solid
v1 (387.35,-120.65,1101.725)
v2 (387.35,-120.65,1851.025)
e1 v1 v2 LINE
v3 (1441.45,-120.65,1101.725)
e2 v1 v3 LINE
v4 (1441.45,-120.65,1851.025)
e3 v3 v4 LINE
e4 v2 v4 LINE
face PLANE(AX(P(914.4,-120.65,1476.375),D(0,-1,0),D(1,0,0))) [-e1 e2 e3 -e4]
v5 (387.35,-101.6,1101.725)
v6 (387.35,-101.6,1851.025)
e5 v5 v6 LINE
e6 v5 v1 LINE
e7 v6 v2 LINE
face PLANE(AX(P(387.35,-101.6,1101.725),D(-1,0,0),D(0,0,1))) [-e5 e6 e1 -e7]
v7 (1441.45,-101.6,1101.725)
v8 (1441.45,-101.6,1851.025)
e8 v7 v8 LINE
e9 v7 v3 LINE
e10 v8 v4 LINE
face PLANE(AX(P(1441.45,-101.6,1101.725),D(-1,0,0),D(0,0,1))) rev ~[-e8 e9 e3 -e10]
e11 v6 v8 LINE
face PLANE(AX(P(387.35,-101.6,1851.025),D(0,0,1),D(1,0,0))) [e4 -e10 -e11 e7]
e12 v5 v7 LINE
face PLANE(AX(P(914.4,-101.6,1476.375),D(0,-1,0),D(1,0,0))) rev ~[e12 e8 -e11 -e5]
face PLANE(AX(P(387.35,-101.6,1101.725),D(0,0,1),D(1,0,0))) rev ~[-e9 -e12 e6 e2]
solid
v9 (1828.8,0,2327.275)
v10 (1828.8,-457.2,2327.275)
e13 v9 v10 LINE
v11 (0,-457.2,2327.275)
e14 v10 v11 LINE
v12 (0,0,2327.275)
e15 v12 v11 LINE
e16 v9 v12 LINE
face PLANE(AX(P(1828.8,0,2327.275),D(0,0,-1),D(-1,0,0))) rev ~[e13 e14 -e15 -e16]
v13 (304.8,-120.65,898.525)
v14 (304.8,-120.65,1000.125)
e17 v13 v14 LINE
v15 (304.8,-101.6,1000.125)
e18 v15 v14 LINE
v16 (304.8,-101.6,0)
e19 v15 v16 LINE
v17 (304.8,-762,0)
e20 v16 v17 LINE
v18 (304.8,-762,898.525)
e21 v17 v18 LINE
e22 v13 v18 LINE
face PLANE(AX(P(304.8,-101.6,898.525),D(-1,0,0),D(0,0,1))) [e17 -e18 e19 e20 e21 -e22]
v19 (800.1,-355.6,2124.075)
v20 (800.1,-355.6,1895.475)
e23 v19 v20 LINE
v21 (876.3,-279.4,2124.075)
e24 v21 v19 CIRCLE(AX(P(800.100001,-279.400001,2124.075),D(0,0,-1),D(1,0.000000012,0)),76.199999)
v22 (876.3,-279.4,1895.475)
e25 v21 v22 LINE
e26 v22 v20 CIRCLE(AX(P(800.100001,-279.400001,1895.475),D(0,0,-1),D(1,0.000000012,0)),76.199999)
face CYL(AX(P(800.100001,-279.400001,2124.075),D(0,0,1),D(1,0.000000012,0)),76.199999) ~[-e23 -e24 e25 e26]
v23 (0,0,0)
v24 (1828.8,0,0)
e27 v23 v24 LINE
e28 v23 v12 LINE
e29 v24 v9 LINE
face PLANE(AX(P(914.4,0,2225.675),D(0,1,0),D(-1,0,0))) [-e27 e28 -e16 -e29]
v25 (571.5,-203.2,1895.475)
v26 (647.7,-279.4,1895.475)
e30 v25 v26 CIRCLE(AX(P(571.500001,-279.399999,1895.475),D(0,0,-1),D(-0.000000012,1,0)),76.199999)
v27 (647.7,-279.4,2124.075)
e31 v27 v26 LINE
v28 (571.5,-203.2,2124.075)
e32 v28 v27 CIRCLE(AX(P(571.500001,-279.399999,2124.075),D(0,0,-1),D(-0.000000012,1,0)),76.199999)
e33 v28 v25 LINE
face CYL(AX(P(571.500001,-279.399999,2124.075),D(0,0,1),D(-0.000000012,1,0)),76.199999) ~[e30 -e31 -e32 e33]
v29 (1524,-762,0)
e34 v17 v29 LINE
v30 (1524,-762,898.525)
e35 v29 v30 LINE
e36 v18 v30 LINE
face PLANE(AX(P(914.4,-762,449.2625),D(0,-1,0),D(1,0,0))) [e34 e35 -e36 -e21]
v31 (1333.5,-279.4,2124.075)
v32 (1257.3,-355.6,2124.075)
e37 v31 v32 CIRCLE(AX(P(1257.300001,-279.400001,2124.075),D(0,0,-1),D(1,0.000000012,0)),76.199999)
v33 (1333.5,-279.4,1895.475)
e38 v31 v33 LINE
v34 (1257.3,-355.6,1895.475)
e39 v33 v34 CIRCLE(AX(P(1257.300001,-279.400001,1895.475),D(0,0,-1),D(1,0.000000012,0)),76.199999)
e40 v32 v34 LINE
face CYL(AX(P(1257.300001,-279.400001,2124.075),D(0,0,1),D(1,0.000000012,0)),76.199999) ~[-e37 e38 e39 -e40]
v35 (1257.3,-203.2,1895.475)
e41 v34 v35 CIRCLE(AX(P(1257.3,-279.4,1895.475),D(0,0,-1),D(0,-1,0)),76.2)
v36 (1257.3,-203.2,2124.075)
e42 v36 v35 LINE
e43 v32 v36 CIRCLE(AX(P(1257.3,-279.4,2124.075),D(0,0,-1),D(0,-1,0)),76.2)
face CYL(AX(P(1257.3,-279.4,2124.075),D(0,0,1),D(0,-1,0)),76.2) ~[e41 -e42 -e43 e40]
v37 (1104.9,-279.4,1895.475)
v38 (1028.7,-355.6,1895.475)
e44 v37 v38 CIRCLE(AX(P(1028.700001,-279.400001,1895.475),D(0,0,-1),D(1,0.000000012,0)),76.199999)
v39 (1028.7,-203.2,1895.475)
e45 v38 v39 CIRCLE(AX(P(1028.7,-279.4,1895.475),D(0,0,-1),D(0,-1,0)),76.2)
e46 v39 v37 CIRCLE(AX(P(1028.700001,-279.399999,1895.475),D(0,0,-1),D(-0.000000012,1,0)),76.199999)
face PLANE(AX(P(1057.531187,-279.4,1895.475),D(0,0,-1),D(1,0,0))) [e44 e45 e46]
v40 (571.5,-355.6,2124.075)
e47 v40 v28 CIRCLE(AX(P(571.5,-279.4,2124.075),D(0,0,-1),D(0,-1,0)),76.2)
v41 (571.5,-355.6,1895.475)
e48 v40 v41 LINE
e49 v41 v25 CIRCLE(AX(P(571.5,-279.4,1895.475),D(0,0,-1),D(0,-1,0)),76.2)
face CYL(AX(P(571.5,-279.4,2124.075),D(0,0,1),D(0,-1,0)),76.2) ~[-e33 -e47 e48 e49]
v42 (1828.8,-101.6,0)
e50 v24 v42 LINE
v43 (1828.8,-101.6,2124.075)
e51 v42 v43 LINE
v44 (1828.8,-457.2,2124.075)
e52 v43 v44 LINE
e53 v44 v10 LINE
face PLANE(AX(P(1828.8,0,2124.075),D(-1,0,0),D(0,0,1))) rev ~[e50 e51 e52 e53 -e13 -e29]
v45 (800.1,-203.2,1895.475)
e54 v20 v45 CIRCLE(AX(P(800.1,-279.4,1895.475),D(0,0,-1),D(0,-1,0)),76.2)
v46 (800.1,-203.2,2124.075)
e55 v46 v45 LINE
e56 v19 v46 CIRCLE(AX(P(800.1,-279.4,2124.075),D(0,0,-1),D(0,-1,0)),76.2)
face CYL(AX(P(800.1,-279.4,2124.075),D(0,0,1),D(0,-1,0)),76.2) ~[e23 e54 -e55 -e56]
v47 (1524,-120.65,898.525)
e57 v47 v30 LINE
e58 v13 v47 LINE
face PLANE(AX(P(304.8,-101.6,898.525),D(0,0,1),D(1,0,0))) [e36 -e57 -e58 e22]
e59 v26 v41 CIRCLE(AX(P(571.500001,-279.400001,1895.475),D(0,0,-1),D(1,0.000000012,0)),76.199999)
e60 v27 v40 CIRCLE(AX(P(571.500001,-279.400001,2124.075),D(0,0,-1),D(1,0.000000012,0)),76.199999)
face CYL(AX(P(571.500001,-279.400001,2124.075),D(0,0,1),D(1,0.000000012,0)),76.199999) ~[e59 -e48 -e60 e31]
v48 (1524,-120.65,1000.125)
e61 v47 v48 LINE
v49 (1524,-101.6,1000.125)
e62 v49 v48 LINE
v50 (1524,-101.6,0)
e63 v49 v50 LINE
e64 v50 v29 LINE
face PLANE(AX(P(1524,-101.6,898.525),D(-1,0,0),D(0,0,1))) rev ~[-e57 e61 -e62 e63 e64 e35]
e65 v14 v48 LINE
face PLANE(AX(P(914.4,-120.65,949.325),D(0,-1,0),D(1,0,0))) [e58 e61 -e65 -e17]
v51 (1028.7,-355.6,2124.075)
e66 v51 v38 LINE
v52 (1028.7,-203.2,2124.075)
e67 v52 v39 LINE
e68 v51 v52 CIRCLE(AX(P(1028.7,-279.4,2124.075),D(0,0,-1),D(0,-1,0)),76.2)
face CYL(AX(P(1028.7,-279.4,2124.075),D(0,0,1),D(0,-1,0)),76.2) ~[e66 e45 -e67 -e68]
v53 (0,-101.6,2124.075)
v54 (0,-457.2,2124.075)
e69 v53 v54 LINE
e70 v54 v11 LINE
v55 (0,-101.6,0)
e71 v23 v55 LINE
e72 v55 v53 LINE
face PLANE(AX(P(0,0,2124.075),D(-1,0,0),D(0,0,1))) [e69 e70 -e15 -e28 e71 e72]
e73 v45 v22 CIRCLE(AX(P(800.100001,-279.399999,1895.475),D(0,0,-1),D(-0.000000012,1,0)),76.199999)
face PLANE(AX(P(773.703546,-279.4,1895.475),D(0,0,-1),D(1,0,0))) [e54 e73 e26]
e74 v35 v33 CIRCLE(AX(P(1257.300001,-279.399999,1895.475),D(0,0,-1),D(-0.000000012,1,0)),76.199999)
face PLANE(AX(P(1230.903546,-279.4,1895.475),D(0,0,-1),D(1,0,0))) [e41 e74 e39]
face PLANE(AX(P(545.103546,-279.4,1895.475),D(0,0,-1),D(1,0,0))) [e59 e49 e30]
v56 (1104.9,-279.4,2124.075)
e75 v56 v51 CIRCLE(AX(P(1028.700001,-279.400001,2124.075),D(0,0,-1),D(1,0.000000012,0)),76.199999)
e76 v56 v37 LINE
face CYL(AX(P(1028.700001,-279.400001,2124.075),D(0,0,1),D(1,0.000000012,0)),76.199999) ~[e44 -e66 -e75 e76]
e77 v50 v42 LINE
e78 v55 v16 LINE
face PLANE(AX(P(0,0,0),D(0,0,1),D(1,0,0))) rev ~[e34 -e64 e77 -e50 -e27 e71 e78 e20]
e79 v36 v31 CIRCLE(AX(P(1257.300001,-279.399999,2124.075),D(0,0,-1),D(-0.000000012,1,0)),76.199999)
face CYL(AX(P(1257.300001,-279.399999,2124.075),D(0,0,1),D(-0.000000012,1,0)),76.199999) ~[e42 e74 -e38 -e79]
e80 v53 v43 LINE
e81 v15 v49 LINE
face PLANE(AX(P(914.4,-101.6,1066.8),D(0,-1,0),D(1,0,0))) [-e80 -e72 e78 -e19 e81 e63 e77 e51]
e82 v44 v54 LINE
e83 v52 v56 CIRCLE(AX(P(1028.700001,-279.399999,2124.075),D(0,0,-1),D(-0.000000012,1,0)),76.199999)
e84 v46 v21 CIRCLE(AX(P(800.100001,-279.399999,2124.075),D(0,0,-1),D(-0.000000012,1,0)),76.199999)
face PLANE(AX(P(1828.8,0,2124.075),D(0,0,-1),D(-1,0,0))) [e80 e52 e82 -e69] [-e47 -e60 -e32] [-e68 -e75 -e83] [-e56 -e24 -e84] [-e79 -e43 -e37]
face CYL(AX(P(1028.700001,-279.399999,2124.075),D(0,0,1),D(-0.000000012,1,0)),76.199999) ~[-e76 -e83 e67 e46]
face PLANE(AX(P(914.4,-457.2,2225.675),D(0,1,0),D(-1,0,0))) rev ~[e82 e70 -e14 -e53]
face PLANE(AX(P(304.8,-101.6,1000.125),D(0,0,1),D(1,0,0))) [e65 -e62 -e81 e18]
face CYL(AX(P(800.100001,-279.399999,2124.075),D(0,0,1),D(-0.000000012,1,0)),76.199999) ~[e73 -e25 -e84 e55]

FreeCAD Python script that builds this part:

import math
import FreeCAD as App
import Part
import Sketcher
Q = App.Units.Quantity


def add_polygon(sketch, points):
    """Adds a closed chain of lines whose ends are joined by coincident constraints."""
    first, n = sketch.GeometryCount, len(points)
    for a, b in zip(points, points[1:] + points[:1]):
        sketch.addGeometry(Part.LineSegment(App.Vector(*a, 0), App.Vector(*b, 0)), False)
    for i in range(n):
        sketch.addConstraint(Sketcher.Constraint("Coincident", first + i, 2, first + (i + 1) % n, 1))

doc = App.newDocument("Part")
body = doc.addObject("PartDesign::Body", "Body")

sketch1 = body.newObject("Sketcher::SketchObject", "Sketch")
sketch1.AttachmentSupport = (doc.getObject("XZ_Plane"), [""])
sketch1.MapMode = "FlatFace"
add_polygon(sketch1, [(0, 2134), (0, 0), (1829, 0), (1829, 2134)])
sketch1.addConstraint(Sketcher.Constraint("Vertical", 0))
sketch1.addConstraint(Sketcher.Constraint("Horizontal", 1))
sketch1.addConstraint(Sketcher.Constraint("Vertical", 2))
sketch1.addConstraint(Sketcher.Constraint("Horizontal", 3))
sketch1.addConstraint(Sketcher.Constraint("Coincident", 0, 2, -1, 1))
sketch1.addConstraint(Sketcher.Constraint("DistanceX", 1, 1, 1, 2, Q("72 in")))
sketch1.addConstraint(Sketcher.Constraint("DistanceY", 0, 2, 0, 1, Q("84 in")))
pad1 = body.newObject("PartDesign::Pad", "Pad")
pad1.Profile = sketch1
pad1.Length = Q("4 in")

sketch2 = body.newObject("Sketcher::SketchObject", "Sketch001")
sketch2.AttachmentSupport = (doc.getObject("XZ_Plane"), [""])
sketch2.MapMode = "FlatFace"
sketch2.AttachmentOffset = App.Placement(App.Vector(0, 0, 4 * 25.4), App.Rotation())
add_polygon(sketch2, [(305, 899), (305, 0), (1524, 0), (1524, 899)])
sketch2.addConstraint(Sketcher.Constraint("Vertical", 0))
sketch2.addConstraint(Sketcher.Constraint("Horizontal", 1))
sketch2.addConstraint(Sketcher.Constraint("Vertical", 2))
sketch2.addConstraint(Sketcher.Constraint("Horizontal", 3))
sketch2.addConstraint(Sketcher.Constraint("PointOnObject", 0, 2, -1))
sketch2.addConstraint(Sketcher.Constraint("DistanceX", 1, 1, 1, 2, Q("48 in")))
sketch2.addConstraint(Sketcher.Constraint("DistanceX", -1, 1, 0, 2, Q("12 in")))
sketch2.addConstraint(Sketcher.Constraint("DistanceY", 0, 2, 0, 1, Q("35.375 in")))
pad2 = body.newObject("PartDesign::Pad", "Pad001")
pad2.Profile = sketch2
pad2.Length = Q("26 in")

sketch3 = body.newObject("Sketcher::SketchObject", "Sketch002")
sketch3.AttachmentSupport = (doc.getObject("XZ_Plane"), [""])
sketch3.MapMode = "FlatFace"
sketch3.AttachmentOffset = App.Placement(App.Vector(0, 0, 4 * 25.4), App.Rotation())
add_polygon(sketch3, [(305, 1000), (305, 899), (1524, 899), (1524, 1000)])
sketch3.addConstraint(Sketcher.Constraint("Vertical", 0))
sketch3.addConstraint(Sketcher.Constraint("Horizontal", 1))
sketch3.addConstraint(Sketcher.Constraint("Vertical", 2))
sketch3.addConstraint(Sketcher.Constraint("Horizontal", 3))
sketch3.addConstraint(Sketcher.Constraint("DistanceX", 1, 1, 1, 2, Q("48 in")))
sketch3.addConstraint(Sketcher.Constraint("DistanceY", 0, 2, 0, 1, Q("4 in")))
sketch3.addConstraint(Sketcher.Constraint("DistanceX", -1, 1, 0, 2, Q("12 in")))
sketch3.addConstraint(Sketcher.Constraint("DistanceY", -1, 1, 0, 2, Q("35.375 in")))
pad3 = body.newObject("PartDesign::Pad", "Pad002")
pad3.Profile = sketch3
pad3.Length = Q("0.75 in")

sketch4 = body.newObject("Sketcher::SketchObject", "Sketch003")
sketch4.AttachmentSupport = (doc.getObject("XZ_Plane"), [""])
sketch4.MapMode = "FlatFace"
sketch4.AttachmentOffset = App.Placement(App.Vector(0, 0, 4 * 25.4), App.Rotation())
add_polygon(sketch4, [(0, 2134), (0, 2124), (1829, 2124), (1829, 2134)])
sketch4.addConstraint(Sketcher.Constraint("Vertical", 0))
sketch4.addConstraint(Sketcher.Constraint("Horizontal", 1))
sketch4.addConstraint(Sketcher.Constraint("Vertical", 2))
sketch4.addConstraint(Sketcher.Constraint("Horizontal", 3))
sketch4.addConstraint(Sketcher.Constraint("PointOnObject", 0, 2, -2))
sketch4.addConstraint(Sketcher.Constraint("DistanceX", 1, 1, 1, 2, Q("72 in")))
sketch4.addConstraint(Sketcher.Constraint("DistanceY", -1, 1, 2, 2, Q("84 in")))
sketch4.addConstraint(Sketcher.Constraint("DistanceY", 0, 2, 0, 1, Q("0.375 in")))
pocket1 = body.newObject("PartDesign::Pocket", "Pocket")
pocket1.Profile = sketch4
pocket1.Type = "ThroughAll"

sketch5 = body.newObject("Sketcher::SketchObject", "Sketch004")
sketch5.AttachmentSupport = (doc.getObject("XZ_Plane"), [""])
sketch5.MapMode = "FlatFace"
add_polygon(sketch5, [(1829, 2327), (1829, 2124), (0, 2124), (0, 2327)])
sketch5.addConstraint(Sketcher.Constraint("Vertical", 0))
sketch5.addConstraint(Sketcher.Constraint("Horizontal", 1))
sketch5.addConstraint(Sketcher.Constraint("Vertical", 2))
sketch5.addConstraint(Sketcher.Constraint("Horizontal", 3))
sketch5.addConstraint(Sketcher.Constraint("PointOnObject", 1, 2, -2))
sketch5.addConstraint(Sketcher.Constraint("DistanceX", 1, 2, 1, 1, Q("72 in")))
sketch5.addConstraint(Sketcher.Constraint("DistanceY", 0, 2, 0, 1, Q("8 in")))
sketch5.addConstraint(Sketcher.Constraint("DistanceY", -1, 1, 0, 2, Q("83.625 in")))
pad4 = body.newObject("PartDesign::Pad", "Pad003")
pad4.Profile = sketch5
pad4.Length = Q("18 in")

sketch6 = body.newObject("Sketcher::SketchObject", "Sketch005")
sketch6.AttachmentSupport = (doc.getObject("XY_Plane"), [""])
sketch6.MapMode = "FlatFace"
sketch6.AttachmentOffset = App.Placement(App.Vector(0, 0, 83.625 * 25.4), App.Rotation())
sketch6.addGeometry(Part.ArcOfCircle(Part.Circle(App.Vector(572, -279, 0), App.Vector(0, 0, 1), 76), math.radians(90), math.radians(270)), False)
sketch6.addGeometry(Part.ArcOfCircle(Part.Circle(App.Vector(572, -279, 0), App.Vector(0, 0, 1), 76), math.radians(0), math.radians(90)), False)
sketch6.addGeometry(Part.ArcOfCircle(Part.Circle(App.Vector(572, -279, 0), App.Vector(0, 0, 1), 76), math.radians(-90), math.radians(0)), False)
sketch6.addGeometry(Part.ArcOfCircle(Part.Circle(App.Vector(800, -279, 0), App.Vector(0, 0, 1), 76), math.radians(90), math.radians(270)), False)
sketch6.addGeometry(Part.ArcOfCircle(Part.Circle(App.Vector(800, -279, 0), App.Vector(0, 0, 1), 76), math.radians(0), math.radians(90)), False)
sketch6.addGeometry(Part.ArcOfCircle(Part.Circle(App.Vector(800, -279, 0), App.Vector(0, 0, 1), 76), math.radians(-90), math.radians(0)), False)
sketch6.addGeometry(Part.ArcOfCircle(Part.Circle(App.Vector(1029, -279, 0), App.Vector(0, 0, 1), 76), math.radians(0), math.radians(90)), False)
sketch6.addGeometry(Part.ArcOfCircle(Part.Circle(App.Vector(1029, -279, 0), App.Vector(0, 0, 1), 76), math.radians(-90), math.radians(0)), False)
sketch6.addGeometry(Part.ArcOfCircle(Part.Circle(App.Vector(1029, -279, 0), App.Vector(0, 0, 1), 76), math.radians(90), math.radians(270)), False)
sketch6.addGeometry(Part.ArcOfCircle(Part.Circle(App.Vector(1257, -279, 0), App.Vector(0, 0, 1), 76), math.radians(90), math.radians(270)), False)
sketch6.addGeometry(Part.ArcOfCircle(Part.Circle(App.Vector(1257, -279, 0), App.Vector(0, 0, 1), 76), math.radians(0), math.radians(90)), False)
sketch6.addGeometry(Part.ArcOfCircle(Part.Circle(App.Vector(1257, -279, 0), App.Vector(0, 0, 1), 76), math.radians(-90), math.radians(0)), False)
sketch6.addConstraint(Sketcher.Constraint("Tangent", 0, 1, 1, 2))
sketch6.addConstraint(Sketcher.Constraint("Tangent", 1, 1, 2, 2))
sketch6.addConstraint(Sketcher.Constraint("Tangent", 2, 1, 0, 2))
sketch6.addConstraint(Sketcher.Constraint("Tangent", 3, 1, 4, 2))
sketch6.addConstraint(Sketcher.Constraint("Tangent", 4, 1, 5, 2))
sketch6.addConstraint(Sketcher.Constraint("Tangent", 5, 1, 3, 2))
sketch6.addConstraint(Sketcher.Constraint("Tangent", 6, 1, 7, 2))
sketch6.addConstraint(Sketcher.Constraint("Tangent", 7, 1, 8, 2))
sketch6.addConstraint(Sketcher.Constraint("Tangent", 8, 1, 6, 2))
sketch6.addConstraint(Sketcher.Constraint("Tangent", 9, 1, 10, 2))
sketch6.addConstraint(Sketcher.Constraint("Tangent", 10, 1, 11, 2))
sketch6.addConstraint(Sketcher.Constraint("Tangent", 11, 1, 9, 2))
sketch6.addConstraint(Sketcher.Constraint("Equal", 2, 3))
sketch6.addConstraint(Sketcher.Constraint("Equal", 5, 6))
sketch6.addConstraint(Sketcher.Constraint("Equal", 8, 9))
sketch6.addConstraint(Sketcher.Constraint("Horizontal", 2, 3, 3, 3))
sketch6.addConstraint(Sketcher.Constraint("Horizontal", 5, 3, 6, 3))
sketch6.addConstraint(Sketcher.Constraint("Horizontal", 8, 3, 9, 3))
sketch6.addConstraint(Sketcher.Constraint("Horizontal", 11, 3, 1, 1))
sketch6.addConstraint(Sketcher.Constraint("Horizontal", 1, 1, 4, 1))
sketch6.addConstraint(Sketcher.Constraint("Horizontal", 4, 1, 6, 1))
sketch6.addConstraint(Sketcher.Constraint("Horizontal", 6, 1, 10, 1))
sketch6.addConstraint(Sketcher.Constraint("Vertical", 2, 3, 0, 1))
sketch6.addConstraint(Sketcher.Constraint("Vertical", 0, 1, 2, 1))
sketch6.addConstraint(Sketcher.Constraint("Vertical", 5, 3, 3, 1))
sketch6.addConstraint(Sketcher.Constraint("Vertical", 3, 1, 5, 1))
sketch6.addConstraint(Sketcher.Constraint("Vertical", 8, 3, 7, 1))
sketch6.addConstraint(Sketcher.Constraint("Vertical", 7, 1, 8, 1))
sketch6.addConstraint(Sketcher.Constraint("Vertical", 11, 3, 9, 1))
sketch6.addConstraint(Sketcher.Constraint("Vertical", 9, 1, 11, 1))
sketch6.addConstraint(Sketcher.Constraint("Radius", 0, Q("3 in")))
sketch6.addConstraint(Sketcher.Constraint("DistanceY", 0, 3, -1, 1, Q("11 in")))
sketch6.addConstraint(Sketcher.Constraint("DistanceX", 1, 3, 3, 3, Q("9 in")))
sketch6.addConstraint(Sketcher.Constraint("DistanceX", 4, 3, 6, 3, Q("9 in")))
sketch6.addConstraint(Sketcher.Constraint("DistanceX", 6, 3, 9, 3, Q("9 in")))
sketch6.addConstraint(Sketcher.Constraint("DistanceX", -1, 1, 0, 3, Q("22.5 in")))
pad5 = body.newObject("PartDesign::Pad", "Pad004")
pad5.Profile = sketch6
pad5.Length = Q("9 in")
pad5.Reversed = True
body2 = doc.addObject("PartDesign::Body", "Body001")

sketch7 = body2.newObject("Sketcher::SketchObject", "Sketch006")
sketch7.AttachmentSupport = (doc.getObject("XZ_Plane001"), [""])
sketch7.MapMode = "FlatFace"
sketch7.AttachmentOffset = App.Placement(App.Vector(0, 0, 4 * 25.4), App.Rotation())
add_polygon(sketch7, [(387, 1851), (387, 1102), (1441, 1102), (1441, 1851)])
sketch7.addConstraint(Sketcher.Constraint("Vertical", 0))
sketch7.addConstraint(Sketcher.Constraint("Horizontal", 1))
sketch7.addConstraint(Sketcher.Constraint("Vertical", 2))
sketch7.addConstraint(Sketcher.Constraint("Horizontal", 3))
sketch7.addConstraint(Sketcher.Constraint("DistanceX", 1, 1, 1, 2, Q("41.5 in")))
sketch7.addConstraint(Sketcher.Constraint("DistanceY", 0, 2, 0, 1, Q("29.5 in")))
sketch7.addConstraint(Sketcher.Constraint("DistanceX", -1, 1, 0, 2, Q("15.25 in")))
sketch7.addConstraint(Sketcher.Constraint("DistanceY", -1, 1, 0, 2, Q("43.375 in")))
pad6 = body2.newObject("PartDesign::Pad", "Pad005")
pad6.Profile = sketch7
pad6.Length = Q("0.75 in")

doc.recompute()
